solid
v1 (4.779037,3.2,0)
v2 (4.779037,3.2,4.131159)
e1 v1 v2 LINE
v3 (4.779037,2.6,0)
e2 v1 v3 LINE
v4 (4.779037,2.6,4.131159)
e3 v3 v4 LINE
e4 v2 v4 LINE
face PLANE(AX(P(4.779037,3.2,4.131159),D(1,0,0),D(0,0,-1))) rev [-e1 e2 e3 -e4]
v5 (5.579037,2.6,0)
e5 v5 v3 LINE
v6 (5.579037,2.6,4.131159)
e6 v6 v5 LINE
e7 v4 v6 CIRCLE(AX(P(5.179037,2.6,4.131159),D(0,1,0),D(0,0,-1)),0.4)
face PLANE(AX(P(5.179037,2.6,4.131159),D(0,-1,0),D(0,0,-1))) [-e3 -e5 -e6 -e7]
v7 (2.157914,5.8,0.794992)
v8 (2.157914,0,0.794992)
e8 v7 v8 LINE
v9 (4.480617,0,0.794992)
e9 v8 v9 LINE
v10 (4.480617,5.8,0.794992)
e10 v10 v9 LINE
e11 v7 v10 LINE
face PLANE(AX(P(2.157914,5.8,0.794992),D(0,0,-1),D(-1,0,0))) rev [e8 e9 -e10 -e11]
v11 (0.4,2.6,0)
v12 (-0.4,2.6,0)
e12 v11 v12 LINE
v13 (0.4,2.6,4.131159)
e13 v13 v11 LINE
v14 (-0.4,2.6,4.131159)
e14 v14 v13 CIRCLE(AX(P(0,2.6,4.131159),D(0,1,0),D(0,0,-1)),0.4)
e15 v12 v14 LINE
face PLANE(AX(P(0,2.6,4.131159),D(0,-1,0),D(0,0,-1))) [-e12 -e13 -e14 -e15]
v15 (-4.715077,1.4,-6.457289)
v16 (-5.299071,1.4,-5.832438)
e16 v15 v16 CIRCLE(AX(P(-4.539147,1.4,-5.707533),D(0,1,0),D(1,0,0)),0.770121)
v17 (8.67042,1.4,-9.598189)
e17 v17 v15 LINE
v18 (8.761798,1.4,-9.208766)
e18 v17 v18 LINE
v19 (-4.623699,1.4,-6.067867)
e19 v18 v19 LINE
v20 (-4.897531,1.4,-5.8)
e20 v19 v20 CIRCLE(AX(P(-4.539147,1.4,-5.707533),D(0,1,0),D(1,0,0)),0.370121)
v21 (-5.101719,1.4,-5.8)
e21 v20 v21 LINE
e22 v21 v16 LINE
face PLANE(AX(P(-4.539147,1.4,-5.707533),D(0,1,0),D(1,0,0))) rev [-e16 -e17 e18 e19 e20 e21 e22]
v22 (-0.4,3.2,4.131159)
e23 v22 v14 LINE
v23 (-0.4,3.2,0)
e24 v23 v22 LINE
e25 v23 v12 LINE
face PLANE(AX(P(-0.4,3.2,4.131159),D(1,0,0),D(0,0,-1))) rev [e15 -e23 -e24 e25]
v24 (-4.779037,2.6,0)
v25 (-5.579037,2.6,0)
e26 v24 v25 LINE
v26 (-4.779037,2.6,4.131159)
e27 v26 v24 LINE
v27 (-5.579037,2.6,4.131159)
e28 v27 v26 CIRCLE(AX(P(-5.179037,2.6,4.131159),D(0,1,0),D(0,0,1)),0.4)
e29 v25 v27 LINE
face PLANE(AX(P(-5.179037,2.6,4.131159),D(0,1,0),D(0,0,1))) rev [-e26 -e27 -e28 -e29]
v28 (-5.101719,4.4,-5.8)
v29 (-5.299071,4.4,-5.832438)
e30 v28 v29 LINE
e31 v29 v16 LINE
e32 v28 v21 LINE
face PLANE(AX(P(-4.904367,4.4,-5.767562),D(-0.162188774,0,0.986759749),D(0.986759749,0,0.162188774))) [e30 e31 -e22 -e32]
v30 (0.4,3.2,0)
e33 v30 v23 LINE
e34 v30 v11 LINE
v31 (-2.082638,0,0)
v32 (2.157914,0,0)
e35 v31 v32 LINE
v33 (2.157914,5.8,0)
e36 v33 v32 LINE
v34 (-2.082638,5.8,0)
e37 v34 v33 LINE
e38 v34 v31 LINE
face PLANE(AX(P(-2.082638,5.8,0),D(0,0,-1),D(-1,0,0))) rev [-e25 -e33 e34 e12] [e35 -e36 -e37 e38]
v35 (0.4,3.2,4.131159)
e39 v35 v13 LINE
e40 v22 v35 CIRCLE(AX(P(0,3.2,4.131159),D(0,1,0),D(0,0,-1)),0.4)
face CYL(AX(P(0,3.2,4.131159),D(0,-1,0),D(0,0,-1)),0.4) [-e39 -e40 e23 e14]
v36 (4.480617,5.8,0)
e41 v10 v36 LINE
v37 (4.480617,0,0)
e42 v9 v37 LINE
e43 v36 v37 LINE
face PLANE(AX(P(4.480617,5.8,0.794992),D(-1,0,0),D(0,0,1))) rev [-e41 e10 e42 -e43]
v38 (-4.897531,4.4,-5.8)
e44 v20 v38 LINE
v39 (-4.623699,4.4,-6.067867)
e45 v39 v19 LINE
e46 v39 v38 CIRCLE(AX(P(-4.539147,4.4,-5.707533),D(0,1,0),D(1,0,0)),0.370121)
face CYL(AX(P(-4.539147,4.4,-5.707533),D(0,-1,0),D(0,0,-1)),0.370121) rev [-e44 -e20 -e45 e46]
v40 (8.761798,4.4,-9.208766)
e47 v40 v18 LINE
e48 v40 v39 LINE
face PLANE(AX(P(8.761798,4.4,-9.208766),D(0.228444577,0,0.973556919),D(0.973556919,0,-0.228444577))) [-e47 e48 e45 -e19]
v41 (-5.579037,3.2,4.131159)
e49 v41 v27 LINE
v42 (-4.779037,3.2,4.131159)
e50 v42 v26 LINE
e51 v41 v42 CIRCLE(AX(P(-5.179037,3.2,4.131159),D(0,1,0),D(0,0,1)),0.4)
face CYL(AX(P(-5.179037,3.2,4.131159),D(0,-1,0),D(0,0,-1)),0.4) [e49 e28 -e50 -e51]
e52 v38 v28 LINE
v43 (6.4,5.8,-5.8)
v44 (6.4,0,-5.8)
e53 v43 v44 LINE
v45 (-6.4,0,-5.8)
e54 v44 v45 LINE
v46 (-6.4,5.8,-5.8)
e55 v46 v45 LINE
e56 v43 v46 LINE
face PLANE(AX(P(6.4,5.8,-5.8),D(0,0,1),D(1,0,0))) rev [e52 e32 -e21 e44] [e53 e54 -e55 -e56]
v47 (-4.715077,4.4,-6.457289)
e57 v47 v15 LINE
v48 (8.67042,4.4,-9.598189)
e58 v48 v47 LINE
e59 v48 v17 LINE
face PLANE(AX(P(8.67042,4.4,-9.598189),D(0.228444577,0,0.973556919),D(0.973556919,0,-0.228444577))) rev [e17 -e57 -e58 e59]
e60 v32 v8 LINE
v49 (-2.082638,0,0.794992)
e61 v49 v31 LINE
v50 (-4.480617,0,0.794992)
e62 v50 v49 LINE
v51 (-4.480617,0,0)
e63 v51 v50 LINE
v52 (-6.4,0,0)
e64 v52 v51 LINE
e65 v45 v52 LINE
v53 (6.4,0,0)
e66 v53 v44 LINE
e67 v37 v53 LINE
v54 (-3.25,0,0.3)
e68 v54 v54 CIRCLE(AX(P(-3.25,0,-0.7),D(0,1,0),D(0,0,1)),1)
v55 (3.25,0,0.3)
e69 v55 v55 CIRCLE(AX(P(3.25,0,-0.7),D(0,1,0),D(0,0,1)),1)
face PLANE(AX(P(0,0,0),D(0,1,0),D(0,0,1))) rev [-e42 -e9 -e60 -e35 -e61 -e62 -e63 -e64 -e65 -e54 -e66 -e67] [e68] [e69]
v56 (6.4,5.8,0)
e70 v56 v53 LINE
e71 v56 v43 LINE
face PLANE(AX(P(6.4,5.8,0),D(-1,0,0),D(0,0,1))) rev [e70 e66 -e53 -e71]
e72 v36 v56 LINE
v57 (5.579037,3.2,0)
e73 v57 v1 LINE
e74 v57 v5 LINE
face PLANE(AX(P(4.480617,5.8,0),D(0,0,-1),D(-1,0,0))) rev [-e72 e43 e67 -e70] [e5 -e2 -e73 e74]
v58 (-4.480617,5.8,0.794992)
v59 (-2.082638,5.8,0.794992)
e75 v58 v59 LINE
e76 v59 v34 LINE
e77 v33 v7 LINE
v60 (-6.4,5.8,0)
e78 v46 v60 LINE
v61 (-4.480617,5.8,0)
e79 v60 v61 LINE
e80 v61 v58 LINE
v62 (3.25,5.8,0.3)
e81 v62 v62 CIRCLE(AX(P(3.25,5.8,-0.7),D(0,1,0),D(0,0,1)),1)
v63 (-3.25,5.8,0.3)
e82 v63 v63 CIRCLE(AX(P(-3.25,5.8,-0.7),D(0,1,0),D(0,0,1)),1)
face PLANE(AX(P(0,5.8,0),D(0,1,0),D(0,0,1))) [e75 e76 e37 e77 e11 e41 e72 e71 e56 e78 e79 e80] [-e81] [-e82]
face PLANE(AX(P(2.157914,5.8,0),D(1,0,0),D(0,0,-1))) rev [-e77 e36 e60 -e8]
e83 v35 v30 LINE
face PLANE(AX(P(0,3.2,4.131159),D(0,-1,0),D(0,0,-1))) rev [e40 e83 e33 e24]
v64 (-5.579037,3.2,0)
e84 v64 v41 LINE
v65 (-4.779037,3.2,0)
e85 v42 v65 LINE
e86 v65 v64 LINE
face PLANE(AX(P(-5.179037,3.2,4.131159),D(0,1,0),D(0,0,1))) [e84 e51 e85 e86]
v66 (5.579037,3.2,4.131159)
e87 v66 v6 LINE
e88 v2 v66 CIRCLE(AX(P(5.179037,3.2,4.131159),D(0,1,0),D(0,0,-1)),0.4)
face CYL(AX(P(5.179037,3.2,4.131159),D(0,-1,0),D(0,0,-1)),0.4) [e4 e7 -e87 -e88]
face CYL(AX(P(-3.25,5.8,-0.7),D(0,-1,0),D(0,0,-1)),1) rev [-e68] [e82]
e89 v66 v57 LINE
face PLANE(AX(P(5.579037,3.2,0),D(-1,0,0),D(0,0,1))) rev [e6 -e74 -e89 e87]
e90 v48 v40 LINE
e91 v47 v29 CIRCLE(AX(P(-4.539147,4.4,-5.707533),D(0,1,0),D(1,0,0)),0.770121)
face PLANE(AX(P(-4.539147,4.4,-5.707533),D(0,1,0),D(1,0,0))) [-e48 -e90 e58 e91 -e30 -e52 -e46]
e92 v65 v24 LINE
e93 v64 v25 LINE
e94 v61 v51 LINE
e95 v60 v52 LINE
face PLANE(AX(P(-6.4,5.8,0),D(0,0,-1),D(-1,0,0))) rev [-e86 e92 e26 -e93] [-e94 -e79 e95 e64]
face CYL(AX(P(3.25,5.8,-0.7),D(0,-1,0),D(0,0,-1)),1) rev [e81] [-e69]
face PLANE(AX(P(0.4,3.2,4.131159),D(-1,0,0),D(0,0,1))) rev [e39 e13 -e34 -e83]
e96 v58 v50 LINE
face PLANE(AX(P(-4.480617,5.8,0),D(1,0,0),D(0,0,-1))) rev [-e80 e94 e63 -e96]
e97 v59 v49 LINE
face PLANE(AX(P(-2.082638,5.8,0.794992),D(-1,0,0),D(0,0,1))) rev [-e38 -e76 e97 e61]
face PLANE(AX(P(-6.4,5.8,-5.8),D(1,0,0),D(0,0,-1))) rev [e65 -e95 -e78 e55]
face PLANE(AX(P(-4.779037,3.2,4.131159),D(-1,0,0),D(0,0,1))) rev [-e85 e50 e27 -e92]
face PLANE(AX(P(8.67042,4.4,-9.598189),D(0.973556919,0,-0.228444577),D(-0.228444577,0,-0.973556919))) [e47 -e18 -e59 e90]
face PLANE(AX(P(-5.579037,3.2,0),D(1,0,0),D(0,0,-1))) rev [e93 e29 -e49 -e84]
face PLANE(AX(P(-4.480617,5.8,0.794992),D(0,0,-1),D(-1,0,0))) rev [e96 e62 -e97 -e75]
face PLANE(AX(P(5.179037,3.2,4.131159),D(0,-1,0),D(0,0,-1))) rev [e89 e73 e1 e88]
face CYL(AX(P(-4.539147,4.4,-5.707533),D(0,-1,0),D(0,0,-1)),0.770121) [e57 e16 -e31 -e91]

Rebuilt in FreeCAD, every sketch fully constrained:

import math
import FreeCAD as App
import Part
import Sketcher
Q = App.Units.Quantity

doc = App.newDocument("Part")
body = doc.addObject("PartDesign::Body", "Body")

sketch1 = doc.addObject("Sketcher::SketchObject", "Sketch")
body.addObject(sketch1)
sketch1.AttachmentSupport = (doc.XZ_Plane, [""])
sketch1.MapMode = "FlatFace"
sketch1.addGeometry(Part.LineSegment(App.Vector(6.4, 0, 0), App.Vector(6.4, -5.8, 0)), False)
sketch1.addGeometry(Part.LineSegment(App.Vector(6.4, -5.8, 0), App.Vector(-6.4, -5.8, 0)), False)
sketch1.addGeometry(Part.LineSegment(App.Vector(-6.4, -5.8, 0), App.Vector(-6.4, 0, 0)), False)
sketch1.addGeometry(Part.LineSegment(App.Vector(-6.4, 0, 0), App.Vector(-4.5, 0, 0)), False)
sketch1.addGeometry(Part.LineSegment(App.Vector(-4.5, 0, 0), App.Vector(-4.5, 0.8, 0)), False)
sketch1.addGeometry(Part.LineSegment(App.Vector(-4.5, 0.8, 0), App.Vector(-2.1, 0.8, 0)), False)
sketch1.addGeometry(Part.LineSegment(App.Vector(-2.1, 0.8, 0), App.Vector(-2.1, 0, 0)), False)
sketch1.addGeometry(Part.LineSegment(App.Vector(-2.1, 0, 0), App.Vector(2.2, 0, 0)), False)
sketch1.addGeometry(Part.LineSegment(App.Vector(2.2, 0, 0), App.Vector(2.2, 0.8, 0)), False)
sketch1.addGeometry(Part.LineSegment(App.Vector(2.2, 0.8, 0), App.Vector(4.5, 0.8, 0)), False)
sketch1.addGeometry(Part.LineSegment(App.Vector(4.5, 0.8, 0), App.Vector(4.5, 0, 0)), False)
sketch1.addGeometry(Part.LineSegment(App.Vector(4.5, 0, 0), App.Vector(6.4, 0, 0)), False)
sketch1.addGeometry(Part.Circle(App.Vector(-3.2, -0.7, 0), App.Vector(0, 0, 1), 1), False)
sketch1.addGeometry(Part.Circle(App.Vector(3.2, -0.7, 0), App.Vector(0, 0, 1), 1), False)
sketch1.addConstraint(Sketcher.Constraint("Coincident", 0, 2, 1, 1))
sketch1.addConstraint(Sketcher.Constraint("Coincident", 1, 2, 2, 1))
sketch1.addConstraint(Sketcher.Constraint("Coincident", 2, 2, 3, 1))
sketch1.addConstraint(Sketcher.Constraint("Coincident", 3, 2, 4, 1))
sketch1.addConstraint(Sketcher.Constraint("Coincident", 4, 2, 5, 1))
sketch1.addConstraint(Sketcher.Constraint("Coincident", 5, 2, 6, 1))
sketch1.addConstraint(Sketcher.Constraint("Coincident", 6, 2, 7, 1))
sketch1.addConstraint(Sketcher.Constraint("Coincident", 7, 2, 8, 1))
sketch1.addConstraint(Sketcher.Constraint("Coincident", 8, 2, 9, 1))
sketch1.addConstraint(Sketcher.Constraint("Coincident", 9, 2, 10, 1))
sketch1.addConstraint(Sketcher.Constraint("Coincident", 10, 2, 11, 1))
sketch1.addConstraint(Sketcher.Constraint("Coincident", 11, 2, 0, 1))
sketch1.addConstraint(Sketcher.Constraint("Vertical", 0))
sketch1.addConstraint(Sketcher.Constraint("Horizontal", 1))
sketch1.addConstraint(Sketcher.Constraint("Vertical", 2))
sketch1.addConstraint(Sketcher.Constraint("Horizontal", 3))
sketch1.addConstraint(Sketcher.Constraint("Vertical", 4))
sketch1.addConstraint(Sketcher.Constraint("Horizontal", 5))
sketch1.addConstraint(Sketcher.Constraint("Vertical", 6))
sketch1.addConstraint(Sketcher.Constraint("Horizontal", 7))
sketch1.addConstraint(Sketcher.Constraint("Vertical", 8))
sketch1.addConstraint(Sketcher.Constraint("Horizontal", 9))
sketch1.addConstraint(Sketcher.Constraint("Vertical", 10))
sketch1.addConstraint(Sketcher.Constraint("Horizontal", 11))
sketch1.addConstraint(Sketcher.Constraint("Equal", 12, 13))
sketch1.addConstraint(Sketcher.Constraint("Symmetric", 3, 2, 10, 2, -1, 1))
sketch1.addConstraint(Sketcher.Constraint("Symmetric", 12, 3, 13, 3, -2))
sketch1.addConstraint(Sketcher.Constraint("Symmetric", 2, 2, 11, 2, -2))
sketch1.addConstraint(Sketcher.Constraint("PointOnObject", 6, 2, -1))
sketch1.addConstraint(Sketcher.Constraint("Horizontal", 5, 2, 8, 2))
sketch1.addConstraint(Sketcher.Constraint("Diameter", 12, Q("2 mm")))
sketch1.addConstraint(Sketcher.Constraint("DistanceX", 1, 2, 1, 1, Q("12.8 mm")))
sketch1.addConstraint(Sketcher.Constraint("DistanceY", 0, 2, 0, 1, Q("5.8 mm")))
sketch1.addConstraint(Sketcher.Constraint("DistanceY", 12, 3, -1, 1, Q("0.7 mm")))
sketch1.addConstraint(Sketcher.Constraint("DistanceX", 12, 3, 13, 3, Q("6.5 mm")))
sketch1.addConstraint(Sketcher.Constraint("DistanceX", 5, 1, 5, 2, Q("2.397979 mm")))
sketch1.addConstraint(Sketcher.Constraint("DistanceX", 7, 1, 7, 2, Q("4.240552 mm")))
sketch1.addConstraint(Sketcher.Constraint("DistanceY", 4, 1, 4, 2, Q("0.794992 mm")))
sketch1.addConstraint(Sketcher.Constraint("DistanceX", 3, 1, 3, 2, Q("1.919383 mm")))
pad1 = doc.addObject("PartDesign::Pad", "Pad")
body.addObject(pad1)
pad1.Profile = sketch1
pad1.Length = 5.8
pad1.Reversed = True

sketch2 = doc.addObject("Sketcher::SketchObject", "Sketch001")
body.addObject(sketch2)
sketch2.AttachmentSupport = (doc.XZ_Plane, [""])
sketch2.MapMode = "FlatFace"
sketch2.AttachmentOffset = App.Placement(App.Vector(0, 0, -2.9), App.Rotation())
sketch2.addGeometry(Part.LineSegment(App.Vector(8.67, -9.6, 0), App.Vector(-4.72, -6.46, 0)), False)
sketch2.addGeometry(Part.ArcOfCircle(Part.Circle(App.Vector(-4.54, -5.71, 0), App.Vector(0, 0, 1), 0.77), math.radians(-171), math.radians(-103)), False)
sketch2.addGeometry(Part.LineSegment(App.Vector(-5.3, -5.83, 0), App.Vector(-4.9, -5.77, 0)), False)
sketch2.addGeometry(Part.ArcOfCircle(Part.Circle(App.Vector(-4.54, -5.71, 0), App.Vector(0, 0, 1), 0.37), math.radians(-171), math.radians(-103)), False)
sketch2.addGeometry(Part.LineSegment(App.Vector(-4.62, -6.07, 0), App.Vector(8.76, -9.21, 0)), False)
sketch2.addGeometry(Part.LineSegment(App.Vector(8.76, -9.21, 0), App.Vector(8.67, -9.6, 0)), False)
sketch2.addConstraint(Sketcher.Constraint("Tangent", 0, 2, 1, 2))
sketch2.addConstraint(Sketcher.Constraint("Coincident", 1, 1, 2, 1))
sketch2.addConstraint(Sketcher.Constraint("Coincident", 2, 2, 3, 1))
sketch2.addConstraint(Sketcher.Constraint("Tangent", 3, 2, 4, 1))
sketch2.addConstraint(Sketcher.Constraint("Coincident", 4, 2, 5, 1))
sketch2.addConstraint(Sketcher.Constraint("Coincident", 5, 2, 0, 1))
sketch2.addConstraint(Sketcher.Constraint("Coincident", 3, 3, 1, 3))
sketch2.addConstraint(Sketcher.Constraint("Parallel", 0, 4))
sketch2.addConstraint(Sketcher.Constraint("Perpendicular", 4, 5))
sketch2.addConstraint(Sketcher.Constraint("Distance", 2, Q("0.4 mm")))
sketch2.addConstraint(Sketcher.Constraint("Radius", 1, Q("0.770121 mm")))
sketch2.addConstraint(Sketcher.Constraint("DistanceX", 3, 2, -1, 1, Q("4.623699 mm")))
sketch2.addConstraint(Sketcher.Constraint("DistanceY", 4, 2, 3, 2, Q("3.140899 mm")))
sketch2.addConstraint(Sketcher.Constraint("DistanceY", 0, 2, -1, 1, Q("6.457289 mm")))
sketch2.addConstraint(Sketcher.Constraint("DistanceX", 1, 1, -1, 1, Q("5.299071 mm")))
sketch2.addConstraint(Sketcher.Constraint("DistanceX", -1, 1, 5, 2, Q("8.67042 mm")))
sketch2.addConstraint(Sketcher.Constraint("DistanceX", 2, 2, 1, 3, Q("0.365221 mm")))
pad2 = doc.addObject("PartDesign::Pad", "Pad001")
body.addObject(pad2)
pad2.Profile = sketch2
pad2.Length = 3
pad2.Midplane = True

sketch3 = doc.addObject("Sketcher::SketchObject", "Sketch002")
body.addObject(sketch3)
sketch3.AttachmentSupport = (doc.XZ_Plane, [""])
sketch3.MapMode = "FlatFace"
sketch3.AttachmentOffset = App.Placement(App.Vector(0, 0, -2.9), App.Rotation())
sketch3.addGeometry(Part.LineSegment(App.Vector(-5.58, 0, 0), App.Vector(-5.58, 4.13, 0)), False)
sketch3.addGeometry(Part.ArcOfCircle(Part.Circle(App.Vector(-5.18, 4.13, 0), App.Vector(0, 0, 1), 0.4), math.radians(0), math.radians(180)), False)
sketch3.addGeometry(Part.LineSegment(App.Vector(-4.78, 4.13, 0), App.Vector(-4.78, 0, 0)), False)
sketch3.addGeometry(Part.LineSegment(App.Vector(-4.78, 0, 0), App.Vector(-5.58, 0, 0)), False)
sketch3.addGeometry(Part.LineSegment(App.Vector(-0.4, 0, 0), App.Vector(-0.4, 4.13, 0)), False)
sketch3.addGeometry(Part.ArcOfCircle(Part.Circle(App.Vector(0, 4.13, 0), App.Vector(0, 0, 1), 0.4), math.radians(0), math.radians(180)), False)
sketch3.addGeometry(Part.LineSegment(App.Vector(0.4, 4.13, 0), App.Vector(0.4, 0, 0)), False)
sketch3.addGeometry(Part.LineSegment(App.Vector(0.4, 0, 0), App.Vector(-0.4, 0, 0)), False)
sketch3.addGeometry(Part.LineSegment(App.Vector(5.58, 0, 0), App.Vector(4.78, 0, 0)), False)
sketch3.addGeometry(Part.LineSegment(App.Vector(4.78, 0, 0), App.Vector(4.78, 4.13, 0)), False)
sketch3.addGeometry(Part.ArcOfCircle(Part.Circle(App.Vector(5.18, 4.13, 0), App.Vector(0, 0, 1), 0.4), math.radians(0), math.radians(180)), False)
sketch3.addGeometry(Part.LineSegment(App.Vector(5.58, 4.13, 0), App.Vector(5.58, 0, 0)), False)
sketch3.addConstraint(Sketcher.Constraint("Tangent", 0, 2, 1, 2))
sketch3.addConstraint(Sketcher.Constraint("Tangent", 1, 1, 2, 1))
sketch3.addConstraint(Sketcher.Constraint("Coincident", 2, 2, 3, 1))
sketch3.addConstraint(Sketcher.Constraint("Coincident", 3, 2, 0, 1))
sketch3.addConstraint(Sketcher.Constraint("Tangent", 4, 2, 5, 2))
sketch3.addConstraint(Sketcher.Constraint("Tangent", 5, 1, 6, 1))
sketch3.addConstraint(Sketcher.Constraint("Coincident", 6, 2, 7, 1))
sketch3.addConstraint(Sketcher.Constraint("Coincident", 7, 2, 4, 1))
sketch3.addConstraint(Sketcher.Constraint("Coincident", 8, 2, 9, 1))
sketch3.addConstraint(Sketcher.Constraint("Tangent", 9, 2, 10, 2))
sketch3.addConstraint(Sketcher.Constraint("Tangent", 10, 1, 11, 1))
sketch3.addConstraint(Sketcher.Constraint("Coincident", 11, 2, 8, 1))
sketch3.addConstraint(Sketcher.Constraint("Vertical", 0))
sketch3.addConstraint(Sketcher.Constraint("Vertical", 2))
sketch3.addConstraint(Sketcher.Constraint("Horizontal", 3))
sketch3.addConstraint(Sketcher.Constraint("Vertical", 4))
sketch3.addConstraint(Sketcher.Constraint("Vertical", 6))
sketch3.addConstraint(Sketcher.Constraint("Horizontal", 7))
sketch3.addConstraint(Sketcher.Constraint("Horizontal", 8))
sketch3.addConstraint(Sketcher.Constraint("Vertical", 9))
sketch3.addConstraint(Sketcher.Constraint("Vertical", 11))
sketch3.addConstraint(Sketcher.Constraint("Equal", 1, 5))
sketch3.addConstraint(Sketcher.Constraint("Equal", 5, 10))
sketch3.addConstraint(Sketcher.Constraint("Symmetric", 6, 2, 7, 2, -1, 1))
sketch3.addConstraint(Sketcher.Constraint("Symmetric", 2, 2, 8, 2, -1, 1))
sketch3.addConstraint(Sketcher.Constraint("PointOnObject", 2, 2, -1))
sketch3.addConstraint(Sketcher.Constraint("Horizontal", 1, 3, 5, 3))
sketch3.addConstraint(Sketcher.Constraint("Horizontal", 5, 3, 10, 3))
sketch3.addConstraint(Sketcher.Constraint("Radius", 1, Q("0.4 mm")))
sketch3.addConstraint(Sketcher.Constraint("DistanceY", 0, 1, 0, 2, Q("4.131159 mm")))
sketch3.addConstraint(Sketcher.Constraint("DistanceX", 1, 3, -1, 1, Q("5.179037 mm")))
pad3 = doc.addObject("PartDesign::Pad", "Pad002")
body.addObject(pad3)
pad3.Profile = sketch3
pad3.Length = 0.6
pad3.Midplane = True

doc.recompute()
